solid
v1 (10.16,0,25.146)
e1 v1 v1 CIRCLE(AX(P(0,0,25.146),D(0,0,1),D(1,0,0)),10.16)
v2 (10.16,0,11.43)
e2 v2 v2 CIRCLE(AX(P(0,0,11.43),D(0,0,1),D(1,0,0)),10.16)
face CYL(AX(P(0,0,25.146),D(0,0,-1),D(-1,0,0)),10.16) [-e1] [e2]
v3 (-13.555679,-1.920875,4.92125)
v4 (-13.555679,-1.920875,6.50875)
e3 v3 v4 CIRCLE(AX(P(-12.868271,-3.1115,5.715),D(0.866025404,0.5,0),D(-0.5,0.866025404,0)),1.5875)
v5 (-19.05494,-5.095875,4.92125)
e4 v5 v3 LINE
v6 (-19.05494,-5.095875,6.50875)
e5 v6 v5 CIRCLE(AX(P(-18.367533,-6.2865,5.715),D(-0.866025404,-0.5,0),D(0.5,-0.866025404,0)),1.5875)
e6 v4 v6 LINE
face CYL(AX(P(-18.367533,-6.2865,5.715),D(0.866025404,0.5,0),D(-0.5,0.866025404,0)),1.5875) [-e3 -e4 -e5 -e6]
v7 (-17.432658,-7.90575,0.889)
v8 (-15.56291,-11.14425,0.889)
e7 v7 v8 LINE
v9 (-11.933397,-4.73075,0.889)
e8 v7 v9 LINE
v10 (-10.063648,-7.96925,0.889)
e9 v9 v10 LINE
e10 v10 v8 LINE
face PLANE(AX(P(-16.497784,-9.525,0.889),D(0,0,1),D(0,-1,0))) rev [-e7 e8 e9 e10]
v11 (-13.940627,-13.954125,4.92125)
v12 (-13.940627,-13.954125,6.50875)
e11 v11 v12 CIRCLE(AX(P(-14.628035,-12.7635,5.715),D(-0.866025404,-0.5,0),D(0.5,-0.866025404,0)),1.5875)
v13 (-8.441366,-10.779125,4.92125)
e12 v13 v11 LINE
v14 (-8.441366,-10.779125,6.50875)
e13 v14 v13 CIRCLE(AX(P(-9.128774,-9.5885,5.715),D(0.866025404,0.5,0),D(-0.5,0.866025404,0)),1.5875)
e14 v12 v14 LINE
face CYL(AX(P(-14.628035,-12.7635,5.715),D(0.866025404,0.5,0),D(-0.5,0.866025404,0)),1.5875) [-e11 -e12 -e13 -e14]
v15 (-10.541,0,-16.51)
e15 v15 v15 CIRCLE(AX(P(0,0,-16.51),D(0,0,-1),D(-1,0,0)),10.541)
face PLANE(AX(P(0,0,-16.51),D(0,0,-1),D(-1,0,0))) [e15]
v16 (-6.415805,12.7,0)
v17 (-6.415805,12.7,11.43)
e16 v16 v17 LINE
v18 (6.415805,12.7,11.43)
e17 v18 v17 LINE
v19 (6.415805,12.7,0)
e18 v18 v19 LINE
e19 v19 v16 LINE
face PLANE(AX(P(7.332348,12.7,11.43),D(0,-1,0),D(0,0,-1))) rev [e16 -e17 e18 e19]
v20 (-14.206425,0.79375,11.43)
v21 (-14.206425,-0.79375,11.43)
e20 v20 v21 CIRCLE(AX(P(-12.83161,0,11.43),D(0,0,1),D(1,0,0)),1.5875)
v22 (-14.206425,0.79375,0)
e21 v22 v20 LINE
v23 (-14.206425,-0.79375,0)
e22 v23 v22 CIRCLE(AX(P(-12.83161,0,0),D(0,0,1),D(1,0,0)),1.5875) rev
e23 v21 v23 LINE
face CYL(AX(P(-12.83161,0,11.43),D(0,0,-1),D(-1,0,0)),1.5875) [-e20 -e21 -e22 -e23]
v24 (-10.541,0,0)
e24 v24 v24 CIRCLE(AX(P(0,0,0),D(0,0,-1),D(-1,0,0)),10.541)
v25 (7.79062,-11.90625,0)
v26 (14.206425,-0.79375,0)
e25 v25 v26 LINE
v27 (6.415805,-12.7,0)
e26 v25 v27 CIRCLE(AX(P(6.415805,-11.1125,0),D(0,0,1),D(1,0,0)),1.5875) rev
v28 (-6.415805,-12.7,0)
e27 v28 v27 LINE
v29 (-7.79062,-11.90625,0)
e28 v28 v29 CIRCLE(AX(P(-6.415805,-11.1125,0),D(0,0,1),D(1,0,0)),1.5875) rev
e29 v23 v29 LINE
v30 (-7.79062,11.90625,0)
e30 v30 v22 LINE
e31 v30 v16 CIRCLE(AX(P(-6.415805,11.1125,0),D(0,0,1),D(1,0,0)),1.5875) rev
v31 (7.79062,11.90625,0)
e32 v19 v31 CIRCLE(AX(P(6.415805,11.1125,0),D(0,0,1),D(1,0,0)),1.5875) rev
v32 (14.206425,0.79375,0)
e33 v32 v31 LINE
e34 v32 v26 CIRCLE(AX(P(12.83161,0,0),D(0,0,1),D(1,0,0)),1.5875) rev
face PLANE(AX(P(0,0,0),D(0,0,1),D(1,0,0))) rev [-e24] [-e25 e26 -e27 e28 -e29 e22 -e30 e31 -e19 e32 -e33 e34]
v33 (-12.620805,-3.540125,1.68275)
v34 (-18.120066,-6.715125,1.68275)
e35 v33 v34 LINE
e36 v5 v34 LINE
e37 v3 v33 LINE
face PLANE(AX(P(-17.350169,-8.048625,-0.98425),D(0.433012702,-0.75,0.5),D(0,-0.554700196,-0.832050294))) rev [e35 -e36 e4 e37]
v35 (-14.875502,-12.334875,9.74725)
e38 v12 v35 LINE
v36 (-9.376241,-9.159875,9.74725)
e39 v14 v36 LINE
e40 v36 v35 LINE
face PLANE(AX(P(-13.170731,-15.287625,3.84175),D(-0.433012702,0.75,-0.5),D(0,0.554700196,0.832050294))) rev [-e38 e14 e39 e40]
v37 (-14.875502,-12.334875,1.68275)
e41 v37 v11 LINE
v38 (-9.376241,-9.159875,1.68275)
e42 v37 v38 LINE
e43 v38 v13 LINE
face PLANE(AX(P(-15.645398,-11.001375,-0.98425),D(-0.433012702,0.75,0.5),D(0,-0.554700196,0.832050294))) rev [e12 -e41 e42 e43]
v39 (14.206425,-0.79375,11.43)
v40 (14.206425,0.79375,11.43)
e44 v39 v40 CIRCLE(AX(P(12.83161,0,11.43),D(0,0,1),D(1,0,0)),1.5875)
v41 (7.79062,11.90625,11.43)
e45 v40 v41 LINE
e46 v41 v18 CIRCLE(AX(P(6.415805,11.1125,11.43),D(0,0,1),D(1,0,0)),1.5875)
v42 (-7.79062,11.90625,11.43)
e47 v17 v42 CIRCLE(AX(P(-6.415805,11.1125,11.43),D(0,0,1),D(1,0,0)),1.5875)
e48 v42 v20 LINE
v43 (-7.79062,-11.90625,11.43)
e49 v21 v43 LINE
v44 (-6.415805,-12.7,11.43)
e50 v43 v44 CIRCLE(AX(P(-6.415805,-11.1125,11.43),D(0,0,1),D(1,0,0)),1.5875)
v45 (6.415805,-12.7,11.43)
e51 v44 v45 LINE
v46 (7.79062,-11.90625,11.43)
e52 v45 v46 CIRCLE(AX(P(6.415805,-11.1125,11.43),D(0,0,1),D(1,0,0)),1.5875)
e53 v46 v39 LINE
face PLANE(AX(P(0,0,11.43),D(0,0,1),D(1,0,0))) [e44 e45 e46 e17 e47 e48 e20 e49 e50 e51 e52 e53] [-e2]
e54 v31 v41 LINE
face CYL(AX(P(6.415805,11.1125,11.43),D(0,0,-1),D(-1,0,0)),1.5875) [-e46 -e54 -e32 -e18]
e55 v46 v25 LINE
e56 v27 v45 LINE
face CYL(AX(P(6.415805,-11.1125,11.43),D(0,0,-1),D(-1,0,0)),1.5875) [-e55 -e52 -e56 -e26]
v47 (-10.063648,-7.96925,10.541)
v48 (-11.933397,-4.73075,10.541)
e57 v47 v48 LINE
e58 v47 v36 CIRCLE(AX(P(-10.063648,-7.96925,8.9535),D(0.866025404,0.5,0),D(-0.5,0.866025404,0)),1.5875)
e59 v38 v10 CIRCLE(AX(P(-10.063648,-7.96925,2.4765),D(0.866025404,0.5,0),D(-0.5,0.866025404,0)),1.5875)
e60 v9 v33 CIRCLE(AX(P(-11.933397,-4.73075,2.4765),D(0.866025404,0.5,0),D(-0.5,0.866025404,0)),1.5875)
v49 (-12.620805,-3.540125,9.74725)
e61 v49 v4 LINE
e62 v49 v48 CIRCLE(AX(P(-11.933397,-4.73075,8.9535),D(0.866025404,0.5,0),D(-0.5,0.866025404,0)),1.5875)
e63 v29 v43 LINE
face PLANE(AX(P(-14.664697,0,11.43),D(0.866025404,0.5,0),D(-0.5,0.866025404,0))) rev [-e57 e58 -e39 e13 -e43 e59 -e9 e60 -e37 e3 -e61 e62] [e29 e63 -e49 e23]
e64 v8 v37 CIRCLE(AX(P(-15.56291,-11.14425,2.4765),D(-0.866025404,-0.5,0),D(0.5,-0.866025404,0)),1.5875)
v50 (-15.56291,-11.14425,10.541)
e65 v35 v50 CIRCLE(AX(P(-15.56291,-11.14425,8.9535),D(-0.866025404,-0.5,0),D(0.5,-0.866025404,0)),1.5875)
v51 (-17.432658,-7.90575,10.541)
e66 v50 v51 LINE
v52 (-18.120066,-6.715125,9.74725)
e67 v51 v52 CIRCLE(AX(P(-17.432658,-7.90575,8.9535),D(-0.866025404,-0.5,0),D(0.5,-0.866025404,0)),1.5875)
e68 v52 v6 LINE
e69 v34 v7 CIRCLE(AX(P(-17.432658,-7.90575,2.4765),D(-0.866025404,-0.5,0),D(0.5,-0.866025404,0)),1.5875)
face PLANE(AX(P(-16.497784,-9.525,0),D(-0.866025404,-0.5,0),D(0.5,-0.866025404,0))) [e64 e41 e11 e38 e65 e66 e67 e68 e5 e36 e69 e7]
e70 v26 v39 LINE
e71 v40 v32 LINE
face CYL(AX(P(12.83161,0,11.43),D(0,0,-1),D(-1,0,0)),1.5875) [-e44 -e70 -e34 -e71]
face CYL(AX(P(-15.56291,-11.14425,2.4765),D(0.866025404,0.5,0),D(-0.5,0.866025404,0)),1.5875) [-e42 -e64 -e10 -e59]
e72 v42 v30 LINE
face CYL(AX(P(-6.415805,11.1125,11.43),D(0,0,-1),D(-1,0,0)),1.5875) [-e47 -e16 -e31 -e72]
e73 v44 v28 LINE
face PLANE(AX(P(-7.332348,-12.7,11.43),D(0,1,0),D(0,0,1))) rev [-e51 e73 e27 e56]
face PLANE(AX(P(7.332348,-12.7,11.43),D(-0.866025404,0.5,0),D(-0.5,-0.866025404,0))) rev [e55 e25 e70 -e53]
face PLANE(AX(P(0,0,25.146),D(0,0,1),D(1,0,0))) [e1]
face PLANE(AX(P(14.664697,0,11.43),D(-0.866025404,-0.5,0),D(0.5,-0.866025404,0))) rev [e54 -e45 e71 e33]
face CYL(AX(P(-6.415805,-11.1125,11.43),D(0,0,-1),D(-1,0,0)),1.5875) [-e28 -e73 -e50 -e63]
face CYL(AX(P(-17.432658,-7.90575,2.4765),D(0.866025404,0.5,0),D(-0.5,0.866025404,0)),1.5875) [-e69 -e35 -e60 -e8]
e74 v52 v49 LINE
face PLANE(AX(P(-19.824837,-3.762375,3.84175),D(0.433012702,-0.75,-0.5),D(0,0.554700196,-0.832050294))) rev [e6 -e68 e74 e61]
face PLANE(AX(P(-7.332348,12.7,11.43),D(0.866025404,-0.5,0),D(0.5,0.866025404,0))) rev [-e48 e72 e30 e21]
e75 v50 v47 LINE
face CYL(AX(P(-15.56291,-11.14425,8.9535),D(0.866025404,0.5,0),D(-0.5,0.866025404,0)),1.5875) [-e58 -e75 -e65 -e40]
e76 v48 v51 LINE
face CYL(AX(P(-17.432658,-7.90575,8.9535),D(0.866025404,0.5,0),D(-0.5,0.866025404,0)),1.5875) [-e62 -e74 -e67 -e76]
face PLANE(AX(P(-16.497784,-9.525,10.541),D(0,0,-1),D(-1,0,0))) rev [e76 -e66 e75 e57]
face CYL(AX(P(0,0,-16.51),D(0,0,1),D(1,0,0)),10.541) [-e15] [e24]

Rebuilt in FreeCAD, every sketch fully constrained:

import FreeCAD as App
import Part
import Sketcher
from FreeCAD import Vector
Q = App.Units.Quantity


def edges_at(feature, points):
    """Names of the edges that pass closest to the given points."""
    edges = feature.Shape.Edges
    near = lambda p: min(range(len(edges)), key=lambda i: edges[i].distToShape(Part.Vertex(*p))[0])
    return sorted({f"Edge{near(p) + 1}" for p in points})

doc = App.newDocument("Part")
params = doc.addObject("Spreadsheet::Sheet", "Params")
for row, (alias, value) in enumerate([
    ("pad1_length", "0.45 in"),
    ("pad2_length", "0.25 in"),
    ("sketch3_diameter", "0.8 in"),
    ("pad3_length", "0.54 in"),
    ("sketch4_diameter", "0.83 in"),
    ("pad4_length", "0.65 in"),
    ("fillet_radius", "0.0625 in"),
    ("fillet2_radius", "0.0625 in"),
], start=1):
    params.set(f"A{row}", alias)
    params.set(f"B{row}", "=" + value)
    params.setAlias(f"B{row}", alias)

body = doc.addObject("PartDesign::Body", "Body")

# Sketch on XY plane
sketch1 = body.newObject("Sketcher::SketchObject", "Sketch")
sketch1.AttachmentSupport = (doc.getObject("XY_Plane"), [""])
sketch1.MapMode = "FlatFace"
sketch1.addGeometry([
    Part.LineSegment(Vector(15, 0, 0), Vector(7, 13, 0)),  # 0
    Part.LineSegment(Vector(7, 13, 0), Vector(-7, 13, 0)),  # 1
    Part.LineSegment(Vector(-7, 13, 0), Vector(-15, 0, 0)),  # 2
    Part.LineSegment(Vector(-15, 0, 0), Vector(-7, -13, 0)),  # 3
    Part.LineSegment(Vector(-7, -13, 0), Vector(7, -13, 0)),  # 4
    Part.LineSegment(Vector(7, -13, 0), Vector(15, 0, 0)),  # 5
], False)
sketch1.addConstraint([
    Sketcher.Constraint("Coincident", 0, 2, 1, 1),
    Sketcher.Constraint("Coincident", 1, 2, 2, 1),
    Sketcher.Constraint("Coincident", 2, 2, 3, 1),
    Sketcher.Constraint("Coincident", 3, 2, 4, 1),
    Sketcher.Constraint("Coincident", 4, 2, 5, 1),
    Sketcher.Constraint("Coincident", 5, 2, 0, 1),
    Sketcher.Constraint("Horizontal", 1),
    Sketcher.Constraint("Horizontal", 4),
    Sketcher.Constraint("Symmetric", 0, 2, 3, 2, -1, 1),
    Sketcher.Constraint("Symmetric", 2, 2, 5, 2, -1, 1),
    Sketcher.Constraint("PointOnObject", 2, 2, -1),
    Sketcher.Constraint("Parallel", 2, 5),
    Sketcher.Constraint("Vertical", 1, 2, 3, 2),
    Sketcher.Constraint("Angle", 0, Q("120 deg")),
    Sketcher.Constraint("DistanceY", 3, 2, 1, 2, Q("1 in")),
    Sketcher.Constraint("DistanceX", 1, 2, 1, 1, Q("14.664697 mm")),
])
pad1 = body.newObject("PartDesign::Pad", "Pad")
pad1.Profile = sketch1
pad1.setExpression("Length", "Params.pad1_length")

# Sketch on an angled plane
sketch2 = body.newObject("Sketcher::SketchObject", "Sketch001")
sketch2.Placement = App.Placement(Vector(-10.998523, -6.35, 0), App.Rotation(Vector(0, 0, 1), Vector(-0.5, 0.866025404, 0), Vector(-0.866025404, -0.5, 0), "ZXY"))
sketch2.addGeometry([
    Part.LineSegment(Vector(6, 6, 0), Vector(1, 3, 0)),  # 0
    Part.LineSegment(Vector(1, 3, 0), Vector(1, -3, 0)),  # 1
    Part.LineSegment(Vector(1, -3, 0), Vector(6, -6, 0)),  # 2
    Part.LineSegment(Vector(6, -6, 0), Vector(11, -3, 0)),  # 3
    Part.LineSegment(Vector(11, -3, 0), Vector(11, 3, 0)),  # 4
    Part.LineSegment(Vector(11, 3, 0), Vector(6, 6, 0)),  # 5
], False)
sketch2.addConstraint([
    Sketcher.Constraint("Coincident", 0, 2, 1, 1),
    Sketcher.Constraint("Coincident", 1, 2, 2, 1),
    Sketcher.Constraint("Coincident", 2, 2, 3, 1),
    Sketcher.Constraint("Coincident", 3, 2, 4, 1),
    Sketcher.Constraint("Coincident", 4, 2, 5, 1),
    Sketcher.Constraint("Coincident", 5, 2, 0, 1),
    Sketcher.Constraint("Vertical", 1),
    Sketcher.Constraint("Vertical", 4),
    Sketcher.Constraint("Symmetric", 2, 2, 5, 2, -1),
    Sketcher.Constraint("Parallel", 0, 3),
    Sketcher.Constraint("Parallel", 2, 5),
    Sketcher.Constraint("Horizontal", 1, 2, 3, 2),
    Sketcher.Constraint("Horizontal", 0, 2, 4, 2),
    Sketcher.Constraint("Angle", 0, Q("-150 deg")),
    Sketcher.Constraint("DistanceX", 1, 2, 2, 2, Q("0.19 in")),
    Sketcher.Constraint("DistanceX", -1, 1, 0, 2, Q("0.035 in")),
    Sketcher.Constraint("DistanceY", 1, 2, 1, 1, Q("5.572585 mm")),
])
pad2 = body.newObject("PartDesign::Pad", "Pad001")
pad2.Profile = sketch2
pad2.setExpression("Length", "Params.pad2_length")

# Sketch on XY plane
sketch3 = body.newObject("Sketcher::SketchObject", "Sketch002")
sketch3.AttachmentSupport = (doc.getObject("XY_Plane"), [""])
sketch3.MapMode = "FlatFace"
sketch3.AttachmentOffset = App.Placement(Vector(0, 0, 0.45 * 25.4), App.Rotation())
sketch3.addGeometry(Part.Circle(Vector(0, 0, 0), Vector(0, 0, 1), 10), False)
sketch3.addConstraint([
    Sketcher.Constraint("Coincident", 0, 3, -1, 1),
    Sketcher.Constraint("Diameter", 0, Q("0.8 in")),
])
sketch3.setExpression("Constraints[1]", "Params.sketch3_diameter")
pad3 = body.newObject("PartDesign::Pad", "Pad002")
pad3.Profile = sketch3
pad3.setExpression("Length", "Params.pad3_length")

# Sketch on XY plane
sketch4 = body.newObject("Sketcher::SketchObject", "Sketch003")
sketch4.AttachmentSupport = (doc.getObject("XY_Plane"), [""])
sketch4.MapMode = "FlatFace"
sketch4.addGeometry(Part.Circle(Vector(0, 0, 0), Vector(0, 0, 1), 11), False)
sketch4.addConstraint([
    Sketcher.Constraint("Coincident", 0, 3, -1, 1),
    Sketcher.Constraint("Diameter", 0, Q("0.83 in")),
])
sketch4.setExpression("Constraints[1]", "Params.sketch4_diameter")
pad4 = body.newObject("PartDesign::Pad", "Pad003")
pad4.Profile = sketch4
pad4.setExpression("Length", "Params.pad4_length")
pad4.Reversed = True
doc.recompute()

fillet = body.newObject("PartDesign::Fillet", "Fillet")
fillet.Base = (pad4, edges_at(pad4, [
    (7.332, -12.7, 5.715),
    (-7.332, -12.7, 5.715),
    (-14.665, 0, 5.715),
    (-7.332, 12.7, 5.715),
    (7.332, 12.7, 5.715),
    (14.665, 0, 5.715),
]))
fillet.setExpression("Radius", "Params.fillet_radius")
doc.recompute()

fillet2 = body.newObject("PartDesign::Fillet", "Fillet001")
fillet2.Base = (fillet, edges_at(fillet, [
    (-12.355, -10.351, 0.889),
    (-10.962, -12.764, 5.715),
    (-12.355, -10.351, 10.541),
    (-15.141, -5.524, 10.541),
    (-16.534, -3.111, 5.715),
    (-15.141, -5.524, 0.889),
]))
fillet2.setExpression("Radius", "Params.fillet2_radius")

doc.recompute()
